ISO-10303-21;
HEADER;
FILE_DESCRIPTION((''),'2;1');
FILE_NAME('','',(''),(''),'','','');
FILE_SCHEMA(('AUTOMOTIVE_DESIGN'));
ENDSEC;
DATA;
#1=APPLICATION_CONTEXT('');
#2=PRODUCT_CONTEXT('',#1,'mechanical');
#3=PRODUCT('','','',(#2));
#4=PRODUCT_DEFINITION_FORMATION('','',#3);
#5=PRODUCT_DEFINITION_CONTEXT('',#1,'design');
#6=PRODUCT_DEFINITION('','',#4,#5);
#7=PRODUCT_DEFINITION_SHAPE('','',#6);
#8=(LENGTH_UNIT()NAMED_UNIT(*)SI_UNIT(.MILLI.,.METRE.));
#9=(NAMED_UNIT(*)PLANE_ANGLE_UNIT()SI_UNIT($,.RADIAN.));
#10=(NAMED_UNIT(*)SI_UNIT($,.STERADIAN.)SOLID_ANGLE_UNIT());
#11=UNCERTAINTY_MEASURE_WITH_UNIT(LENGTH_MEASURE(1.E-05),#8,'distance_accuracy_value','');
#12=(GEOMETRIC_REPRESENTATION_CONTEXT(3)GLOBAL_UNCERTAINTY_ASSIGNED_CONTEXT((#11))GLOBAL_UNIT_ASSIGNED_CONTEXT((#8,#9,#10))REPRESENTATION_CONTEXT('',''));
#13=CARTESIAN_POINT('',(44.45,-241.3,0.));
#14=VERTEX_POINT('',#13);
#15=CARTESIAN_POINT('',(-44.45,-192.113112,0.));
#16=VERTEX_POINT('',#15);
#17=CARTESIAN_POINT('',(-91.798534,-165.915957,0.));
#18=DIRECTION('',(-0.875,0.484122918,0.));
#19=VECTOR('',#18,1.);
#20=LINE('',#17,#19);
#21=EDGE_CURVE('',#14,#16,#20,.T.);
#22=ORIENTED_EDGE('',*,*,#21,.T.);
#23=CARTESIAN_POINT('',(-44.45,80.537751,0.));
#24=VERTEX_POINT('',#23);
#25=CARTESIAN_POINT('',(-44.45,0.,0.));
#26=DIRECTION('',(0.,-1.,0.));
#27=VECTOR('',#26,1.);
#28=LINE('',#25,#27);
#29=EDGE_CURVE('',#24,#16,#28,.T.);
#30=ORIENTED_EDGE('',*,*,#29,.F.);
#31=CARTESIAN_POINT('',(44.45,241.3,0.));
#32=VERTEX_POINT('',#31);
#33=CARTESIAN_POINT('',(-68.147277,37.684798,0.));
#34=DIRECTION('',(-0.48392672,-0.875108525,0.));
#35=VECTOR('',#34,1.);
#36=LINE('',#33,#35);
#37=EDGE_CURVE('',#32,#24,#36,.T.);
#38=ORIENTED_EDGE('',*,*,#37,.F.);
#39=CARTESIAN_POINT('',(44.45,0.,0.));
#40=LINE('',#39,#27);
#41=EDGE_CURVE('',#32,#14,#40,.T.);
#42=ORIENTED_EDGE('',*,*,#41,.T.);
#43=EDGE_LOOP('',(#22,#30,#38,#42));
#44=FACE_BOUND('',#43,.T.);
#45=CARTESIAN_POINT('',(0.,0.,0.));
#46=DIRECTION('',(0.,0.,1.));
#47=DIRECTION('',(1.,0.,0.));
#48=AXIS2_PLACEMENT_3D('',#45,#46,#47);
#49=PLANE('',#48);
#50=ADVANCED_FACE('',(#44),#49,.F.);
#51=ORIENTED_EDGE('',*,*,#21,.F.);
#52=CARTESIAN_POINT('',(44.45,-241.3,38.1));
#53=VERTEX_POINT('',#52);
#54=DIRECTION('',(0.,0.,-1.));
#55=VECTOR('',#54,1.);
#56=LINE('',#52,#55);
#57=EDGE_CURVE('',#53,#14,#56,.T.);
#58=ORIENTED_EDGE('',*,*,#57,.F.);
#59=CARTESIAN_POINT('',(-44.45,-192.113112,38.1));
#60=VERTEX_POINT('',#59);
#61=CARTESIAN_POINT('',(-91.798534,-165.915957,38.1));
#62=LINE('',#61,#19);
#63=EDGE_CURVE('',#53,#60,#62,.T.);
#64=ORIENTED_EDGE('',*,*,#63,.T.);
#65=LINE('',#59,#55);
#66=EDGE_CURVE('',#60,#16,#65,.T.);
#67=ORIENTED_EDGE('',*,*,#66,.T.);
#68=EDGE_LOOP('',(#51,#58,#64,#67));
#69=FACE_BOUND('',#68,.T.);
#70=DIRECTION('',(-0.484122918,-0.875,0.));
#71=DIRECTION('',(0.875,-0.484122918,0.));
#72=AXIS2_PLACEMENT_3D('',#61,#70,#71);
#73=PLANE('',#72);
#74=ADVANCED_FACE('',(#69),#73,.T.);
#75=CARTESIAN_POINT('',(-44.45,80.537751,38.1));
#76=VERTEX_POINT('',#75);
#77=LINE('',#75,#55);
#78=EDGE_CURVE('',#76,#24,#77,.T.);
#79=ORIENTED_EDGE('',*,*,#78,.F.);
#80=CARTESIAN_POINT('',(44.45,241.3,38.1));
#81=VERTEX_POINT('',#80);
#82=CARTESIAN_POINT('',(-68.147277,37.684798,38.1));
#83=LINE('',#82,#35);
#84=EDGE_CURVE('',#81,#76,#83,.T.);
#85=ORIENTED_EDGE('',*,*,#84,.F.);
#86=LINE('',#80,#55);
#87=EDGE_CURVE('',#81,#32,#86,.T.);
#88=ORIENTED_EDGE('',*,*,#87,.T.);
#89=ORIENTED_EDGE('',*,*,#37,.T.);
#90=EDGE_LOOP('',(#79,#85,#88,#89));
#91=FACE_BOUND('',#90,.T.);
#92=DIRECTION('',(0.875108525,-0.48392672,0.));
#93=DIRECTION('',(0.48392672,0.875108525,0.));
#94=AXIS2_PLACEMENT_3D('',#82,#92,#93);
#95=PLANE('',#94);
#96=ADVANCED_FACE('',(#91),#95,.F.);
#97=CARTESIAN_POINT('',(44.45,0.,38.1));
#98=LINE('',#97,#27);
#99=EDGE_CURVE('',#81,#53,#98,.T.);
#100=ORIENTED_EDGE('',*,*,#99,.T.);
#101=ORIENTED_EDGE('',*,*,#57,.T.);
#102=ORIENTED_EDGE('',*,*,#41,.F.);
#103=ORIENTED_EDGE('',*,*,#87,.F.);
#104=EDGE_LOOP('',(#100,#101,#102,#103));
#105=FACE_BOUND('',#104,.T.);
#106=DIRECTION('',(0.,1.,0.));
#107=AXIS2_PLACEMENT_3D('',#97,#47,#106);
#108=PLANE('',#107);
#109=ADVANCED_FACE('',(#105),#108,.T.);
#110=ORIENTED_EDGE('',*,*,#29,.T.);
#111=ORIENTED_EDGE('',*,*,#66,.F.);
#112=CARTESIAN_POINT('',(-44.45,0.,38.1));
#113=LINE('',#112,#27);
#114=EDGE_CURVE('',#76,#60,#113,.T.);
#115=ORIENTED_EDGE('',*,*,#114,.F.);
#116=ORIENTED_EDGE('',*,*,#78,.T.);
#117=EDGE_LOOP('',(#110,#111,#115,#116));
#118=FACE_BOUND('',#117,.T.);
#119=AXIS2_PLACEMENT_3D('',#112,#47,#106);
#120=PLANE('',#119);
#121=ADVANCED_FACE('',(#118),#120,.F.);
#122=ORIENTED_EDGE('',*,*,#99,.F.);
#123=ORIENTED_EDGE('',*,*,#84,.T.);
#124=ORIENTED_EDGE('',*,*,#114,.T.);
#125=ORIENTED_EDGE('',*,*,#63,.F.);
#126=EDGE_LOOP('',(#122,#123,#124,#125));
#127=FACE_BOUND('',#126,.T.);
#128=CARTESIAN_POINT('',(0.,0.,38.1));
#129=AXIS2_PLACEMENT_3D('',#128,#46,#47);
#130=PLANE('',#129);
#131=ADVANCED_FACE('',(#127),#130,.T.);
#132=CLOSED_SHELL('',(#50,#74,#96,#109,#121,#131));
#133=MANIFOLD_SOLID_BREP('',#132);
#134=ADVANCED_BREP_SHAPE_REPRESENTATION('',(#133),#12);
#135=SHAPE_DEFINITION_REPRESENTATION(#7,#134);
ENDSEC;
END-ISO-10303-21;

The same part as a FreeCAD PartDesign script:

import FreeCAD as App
import Part
import Sketcher
Q = App.Units.Quantity

doc = App.newDocument("Part")
params = doc.addObject("Spreadsheet::Sheet", "Params")
for row, (alias, value) in enumerate([
    ("sketch1_height", "19 in"),
    ("sketch1_length", "4 in"),
    ("pad1_length", "1.5 in"),
], start=1):
    params.set(f"A{row}", alias)
    params.set(f"B{row}", "=" + value)
    params.setAlias(f"B{row}", alias)

body = doc.addObject("PartDesign::Body", "Body")

# Sketch on XY plane
sketch1 = doc.addObject("Sketcher::SketchObject", "Sketch")
body.addObject(sketch1)
sketch1.AttachmentSupport = (doc.XY_Plane, [""])
sketch1.MapMode = "FlatFace"
sketch1.addGeometry([
    Part.LineSegment(App.Vector(44.45, -241.3, 0), App.Vector(44.45, 241.3, 0)),
    Part.LineSegment(App.Vector(44.45, 241.3, 0), App.Vector(-44.45, 80.537751, 0)),
    Part.LineSegment(App.Vector(-44.45, 80.537751, 0), App.Vector(-44.45, -192.113112, 0)),
    Part.LineSegment(App.Vector(-44.45, -192.113112, 0), App.Vector(44.45, -241.3, 0)),
], False)
sketch1.addConstraint([
    Sketcher.Constraint("Coincident", 0, 2, 1, 1),
    Sketcher.Constraint("Coincident", 1, 2, 2, 1),
    Sketcher.Constraint("Coincident", 2, 2, 3, 1),
    Sketcher.Constraint("Coincident", 3, 2, 0, 1),
    Sketcher.Constraint("Vertical", 0),
    Sketcher.Constraint("Vertical", 2),
    Sketcher.Constraint("DistanceY", 0, 1, 0, 2, Q("19 in")),
    Sketcher.Constraint("Distance", 3, Q("4 in")),
    Sketcher.Constraint("DistanceY", -1, 1, 0, 2, Q("9.5 in")),
    Sketcher.Constraint("DistanceX", 1, 2, 0, 2, Q("3.5 in")),
    Sketcher.Constraint("DistanceX", -1, 1, 0, 2, Q("1.75 in")),
    Sketcher.Constraint("Distance", 1, Q("7.2325 in")),
])
sketch1.setExpression("Constraints[6]", "Params.sketch1_height")
sketch1.setExpression("Constraints[7]", "Params.sketch1_length")
pad1 = doc.addObject("PartDesign::Pad", "Pad")
body.addObject(pad1)
pad1.Profile = sketch1
pad1.setExpression("Length", "Params.pad1_length")

doc.recompute()
